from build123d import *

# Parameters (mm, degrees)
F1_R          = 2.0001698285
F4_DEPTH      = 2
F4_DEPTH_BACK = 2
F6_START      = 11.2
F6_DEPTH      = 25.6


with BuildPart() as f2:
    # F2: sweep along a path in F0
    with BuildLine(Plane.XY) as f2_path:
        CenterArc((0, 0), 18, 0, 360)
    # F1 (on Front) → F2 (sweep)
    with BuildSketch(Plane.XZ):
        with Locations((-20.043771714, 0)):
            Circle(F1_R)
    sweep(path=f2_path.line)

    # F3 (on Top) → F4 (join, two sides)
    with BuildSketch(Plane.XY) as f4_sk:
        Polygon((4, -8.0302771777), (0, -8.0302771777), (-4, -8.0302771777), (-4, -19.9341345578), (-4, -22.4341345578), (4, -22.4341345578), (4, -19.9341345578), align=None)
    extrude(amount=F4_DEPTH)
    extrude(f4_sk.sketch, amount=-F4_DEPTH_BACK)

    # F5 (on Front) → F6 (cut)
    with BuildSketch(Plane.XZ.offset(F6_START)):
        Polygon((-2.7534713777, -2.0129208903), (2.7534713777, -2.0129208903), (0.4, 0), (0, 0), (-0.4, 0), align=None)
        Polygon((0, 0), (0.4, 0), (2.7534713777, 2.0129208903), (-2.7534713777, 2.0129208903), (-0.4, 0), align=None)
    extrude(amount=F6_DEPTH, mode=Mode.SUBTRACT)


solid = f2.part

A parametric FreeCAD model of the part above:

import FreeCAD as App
import Part
import Sketcher
from FreeCAD import Vector

doc = App.newDocument("Part")
params = doc.addObject("Spreadsheet::Sheet", "Params")
for row, (alias, value) in enumerate([
    ("sketch2_diameter", "36 mm"),
    ("sketch3_width", "8 mm"),
    ("pad1_length", "2 mm"),
    ("pad1_length2", "2 mm"),
    ("pocket1_length", "25.6 mm"),
], start=1):
    params.set(f"A{row}", alias)
    params.set(f"B{row}", "=" + value)
    params.setAlias(f"B{row}", alias)

body = doc.addObject("PartDesign::Body", "Body")

# Sketch on XZ plane
sketch1 = body.newObject("Sketcher::SketchObject", "Sketch")
sketch1.AttachmentSupport = (doc.getObject("XZ_Plane"), [""])
sketch1.MapMode = "FlatFace"
sketch1.addGeometry(Part.Circle(Vector(-20, 0, 0), Vector(0, 0, 1), 2), False)
sketch1.addConstraint(Sketcher.Constraint("PointOnObject", 0, 3, -1))
sketch1.addConstraint(Sketcher.Constraint("Diameter", 0, 4.00034))
sketch1.addConstraint(Sketcher.Constraint("DistanceX", 0, 3, -1, 1, 20.043772))

# Sketch on XY plane
sketch2 = body.newObject("Sketcher::SketchObject", "Sketch001")
sketch2.AttachmentSupport = (doc.getObject("XY_Plane"), [""])
sketch2.MapMode = "FlatFace"
sketch2.addGeometry(Part.Circle(Vector(0, 0, 0), Vector(0, 0, 1), 18), False)
sketch2.addConstraint(Sketcher.Constraint("Coincident", 0, 3, -1, 1))
sketch2.addConstraint(Sketcher.Constraint("Diameter", 0, 36.0))
sketch2.setExpression("Constraints[1]", "Params.sketch2_diameter")
doc.recompute()

additivepipe = body.newObject("PartDesign::AdditivePipe", "AdditivePipe")
additivepipe.Profile = sketch1
additivepipe.Spine = (sketch2, ["Edge1"])

# Sketch on XY plane
sketch3 = body.newObject("Sketcher::SketchObject", "Sketch002")
sketch3.AttachmentSupport = (doc.getObject("XY_Plane"), [""])
sketch3.MapMode = "FlatFace"
sketch3.addGeometry(Part.LineSegment(Vector(4, -8, 0), Vector(-4, -8, 0)), False)
sketch3.addGeometry(Part.LineSegment(Vector(-4, -8, 0), Vector(-4, -22, 0)), False)
sketch3.addGeometry(Part.LineSegment(Vector(-4, -22, 0), Vector(4, -22, 0)), False)
sketch3.addGeometry(Part.LineSegment(Vector(4, -22, 0), Vector(4, -8, 0)), False)
sketch3.addConstraint(Sketcher.Constraint("Coincident", 0, 2, 1, 1))
sketch3.addConstraint(Sketcher.Constraint("Coincident", 1, 2, 2, 1))
sketch3.addConstraint(Sketcher.Constraint("Coincident", 2, 2, 3, 1))
sketch3.addConstraint(Sketcher.Constraint("Coincident", 3, 2, 0, 1))
sketch3.addConstraint(Sketcher.Constraint("Horizontal", 0))
sketch3.addConstraint(Sketcher.Constraint("Vertical", 1))
sketch3.addConstraint(Sketcher.Constraint("Horizontal", 2))
sketch3.addConstraint(Sketcher.Constraint("Vertical", 3))
sketch3.addConstraint(Sketcher.Constraint("DistanceX", 0, 2, 0, 1, 8.0))
sketch3.addConstraint(Sketcher.Constraint("DistanceX", 0, 2, -1, 1, 4.0))
sketch3.addConstraint(Sketcher.Constraint("DistanceY", 1, 2, 1, 1, 14.403857))
sketch3.addConstraint(Sketcher.Constraint("DistanceY", 0, 2, -1, 1, 8.030277))
sketch3.setExpression("Constraints[8]", "Params.sketch3_width")
pad1 = body.newObject("PartDesign::Pad", "Pad")
pad1.Profile = sketch3
pad1.Type = "TwoLengths"
pad1.setExpression("Length", "Params.pad1_length")
pad1.setExpression("Length2", "Params.pad1_length2")

# Sketch on XZ plane
sketch4 = body.newObject("Sketcher::SketchObject", "Sketch003")
sketch4.AttachmentSupport = (doc.getObject("XZ_Plane"), [""])
sketch4.MapMode = "FlatFace"
sketch4.AttachmentOffset = App.Placement(Vector(0, 0, 11.2), App.Rotation())
sketch4.addGeometry(Part.LineSegment(Vector(-2.8, -2, 0), Vector(2.8, -2, 0)), False)
sketch4.addGeometry(Part.LineSegment(Vector(2.8, -2, 0), Vector(0.4, 0, 0)), False)
sketch4.addGeometry(Part.LineSegment(Vector(0.4, 0, 0), Vector(2.8, 2, 0)), False)
sketch4.addGeometry(Part.LineSegment(Vector(2.8, 2, 0), Vector(-2.8, 2, 0)), False)
sketch4.addGeometry(Part.LineSegment(Vector(-2.8, 2, 0), Vector(-0.4, 0, 0)), False)
sketch4.addGeometry(Part.LineSegment(Vector(-0.4, 0, 0), Vector(-2.8, -2, 0)), False)
sketch4.addConstraint(Sketcher.Constraint("Coincident", 0, 2, 1, 1))
sketch4.addConstraint(Sketcher.Constraint("Coincident", 1, 2, 2, 1))
sketch4.addConstraint(Sketcher.Constraint("Coincident", 2, 2, 3, 1))
sketch4.addConstraint(Sketcher.Constraint("Coincident", 3, 2, 4, 1))
sketch4.addConstraint(Sketcher.Constraint("Coincident", 4, 2, 5, 1))
sketch4.addConstraint(Sketcher.Constraint("Coincident", 5, 2, 0, 1))
sketch4.addConstraint(Sketcher.Constraint("Horizontal", 0))
sketch4.addConstraint(Sketcher.Constraint("Horizontal", 3))
sketch4.addConstraint(Sketcher.Constraint("Symmetric", 0, 2, 3, 2, -1, 1))
sketch4.addConstraint(Sketcher.Constraint("Symmetric", 1, 2, 4, 2, -1, 1))
sketch4.addConstraint(Sketcher.Constraint("PointOnObject", 1, 2, -1))
sketch4.addConstraint(Sketcher.Constraint("Parallel", 2, 5))
sketch4.addConstraint(Sketcher.Constraint("Vertical", 0, 2, 2, 2))
sketch4.addConstraint(Sketcher.Constraint("DistanceX", -1, 1, 1, 2, 0.4))
sketch4.addConstraint(Sketcher.Constraint("Distance", 1, 3.096882))
sketch4.addConstraint(Sketcher.Constraint("DistanceX", 0, 1, 0, 2, 5.506943))
pocket1 = body.newObject("PartDesign::Pocket", "Pocket")
pocket1.Profile = sketch4
pocket1.setExpression("Length", "Params.pocket1_length")
pocket1.Reversed = True

doc.recompute()
